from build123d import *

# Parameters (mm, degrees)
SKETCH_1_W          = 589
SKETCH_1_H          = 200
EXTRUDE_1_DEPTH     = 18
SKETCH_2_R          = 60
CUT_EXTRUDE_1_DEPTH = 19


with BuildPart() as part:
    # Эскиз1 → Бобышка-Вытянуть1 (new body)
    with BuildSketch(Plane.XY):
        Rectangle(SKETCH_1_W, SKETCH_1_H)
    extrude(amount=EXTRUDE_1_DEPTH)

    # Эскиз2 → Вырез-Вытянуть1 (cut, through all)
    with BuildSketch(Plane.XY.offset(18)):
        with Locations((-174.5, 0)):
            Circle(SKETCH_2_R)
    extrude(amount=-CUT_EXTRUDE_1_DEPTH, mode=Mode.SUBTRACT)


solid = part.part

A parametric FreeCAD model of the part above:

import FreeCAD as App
import Part
import Sketcher

V = App.Vector

doc = App.newDocument("Part")
body = doc.addObject("PartDesign::Body", "Body")

# Sketch on XY plane
sketch1 = body.newObject("Sketcher::SketchObject", "Sketch")
sketch1.AttachmentSupport = (doc.getObject("XY_Plane"), [""])
sketch1.MapMode = "FlatFace"
sketch1.addGeometry([
    Part.LineSegment(V(-294, 100, 0), V(-294, -100, 0)),
    Part.LineSegment(V(-294, -100, 0), V(294, -100, 0)),
    Part.LineSegment(V(294, -100, 0), V(294, 100, 0)),
    Part.LineSegment(V(294, 100, 0), V(-294, 100, 0)),
], False)
sketch1.addConstraint([
    Sketcher.Constraint("Coincident", 0, 2, 1, 1),
    Sketcher.Constraint("Coincident", 1, 2, 2, 1),
    Sketcher.Constraint("Coincident", 2, 2, 3, 1),
    Sketcher.Constraint("Coincident", 3, 2, 0, 1),
    Sketcher.Constraint("Vertical", 0),
    Sketcher.Constraint("Horizontal", 1),
    Sketcher.Constraint("Vertical", 2),
    Sketcher.Constraint("Horizontal", 3),
    Sketcher.Constraint("Symmetric", 0, 2, 2, 2, -1, 1),
    Sketcher.Constraint("DistanceX", 1, 1, 1, 2, 589.0),
    Sketcher.Constraint("DistanceY", 0, 2, 0, 1, 200.0),
])
pad1 = body.newObject("PartDesign::Pad", "Pad")
pad1.Profile = sketch1
pad1.Length = 18

# Sketch on XY plane
sketch2 = body.newObject("Sketcher::SketchObject", "Sketch001")
sketch2.AttachmentSupport = (doc.getObject("XY_Plane"), [""])
sketch2.MapMode = "FlatFace"
sketch2.AttachmentOffset = App.Placement(V(0, 0, 18), App.Rotation())
sketch2.addGeometry(Part.Circle(V(-174, 0, 0), V(0, 0, 1), 60), False)
sketch2.addConstraint([
    Sketcher.Constraint("PointOnObject", 0, 3, -1),
    Sketcher.Constraint("Diameter", 0, 120.0),
    Sketcher.Constraint("DistanceX", 0, 3, -1, 1, 174.5),
])
pocket1 = body.newObject("PartDesign::Pocket", "Pocket")
pocket1.Profile = sketch2
pocket1.Type = "ThroughAll"

doc.recompute()
